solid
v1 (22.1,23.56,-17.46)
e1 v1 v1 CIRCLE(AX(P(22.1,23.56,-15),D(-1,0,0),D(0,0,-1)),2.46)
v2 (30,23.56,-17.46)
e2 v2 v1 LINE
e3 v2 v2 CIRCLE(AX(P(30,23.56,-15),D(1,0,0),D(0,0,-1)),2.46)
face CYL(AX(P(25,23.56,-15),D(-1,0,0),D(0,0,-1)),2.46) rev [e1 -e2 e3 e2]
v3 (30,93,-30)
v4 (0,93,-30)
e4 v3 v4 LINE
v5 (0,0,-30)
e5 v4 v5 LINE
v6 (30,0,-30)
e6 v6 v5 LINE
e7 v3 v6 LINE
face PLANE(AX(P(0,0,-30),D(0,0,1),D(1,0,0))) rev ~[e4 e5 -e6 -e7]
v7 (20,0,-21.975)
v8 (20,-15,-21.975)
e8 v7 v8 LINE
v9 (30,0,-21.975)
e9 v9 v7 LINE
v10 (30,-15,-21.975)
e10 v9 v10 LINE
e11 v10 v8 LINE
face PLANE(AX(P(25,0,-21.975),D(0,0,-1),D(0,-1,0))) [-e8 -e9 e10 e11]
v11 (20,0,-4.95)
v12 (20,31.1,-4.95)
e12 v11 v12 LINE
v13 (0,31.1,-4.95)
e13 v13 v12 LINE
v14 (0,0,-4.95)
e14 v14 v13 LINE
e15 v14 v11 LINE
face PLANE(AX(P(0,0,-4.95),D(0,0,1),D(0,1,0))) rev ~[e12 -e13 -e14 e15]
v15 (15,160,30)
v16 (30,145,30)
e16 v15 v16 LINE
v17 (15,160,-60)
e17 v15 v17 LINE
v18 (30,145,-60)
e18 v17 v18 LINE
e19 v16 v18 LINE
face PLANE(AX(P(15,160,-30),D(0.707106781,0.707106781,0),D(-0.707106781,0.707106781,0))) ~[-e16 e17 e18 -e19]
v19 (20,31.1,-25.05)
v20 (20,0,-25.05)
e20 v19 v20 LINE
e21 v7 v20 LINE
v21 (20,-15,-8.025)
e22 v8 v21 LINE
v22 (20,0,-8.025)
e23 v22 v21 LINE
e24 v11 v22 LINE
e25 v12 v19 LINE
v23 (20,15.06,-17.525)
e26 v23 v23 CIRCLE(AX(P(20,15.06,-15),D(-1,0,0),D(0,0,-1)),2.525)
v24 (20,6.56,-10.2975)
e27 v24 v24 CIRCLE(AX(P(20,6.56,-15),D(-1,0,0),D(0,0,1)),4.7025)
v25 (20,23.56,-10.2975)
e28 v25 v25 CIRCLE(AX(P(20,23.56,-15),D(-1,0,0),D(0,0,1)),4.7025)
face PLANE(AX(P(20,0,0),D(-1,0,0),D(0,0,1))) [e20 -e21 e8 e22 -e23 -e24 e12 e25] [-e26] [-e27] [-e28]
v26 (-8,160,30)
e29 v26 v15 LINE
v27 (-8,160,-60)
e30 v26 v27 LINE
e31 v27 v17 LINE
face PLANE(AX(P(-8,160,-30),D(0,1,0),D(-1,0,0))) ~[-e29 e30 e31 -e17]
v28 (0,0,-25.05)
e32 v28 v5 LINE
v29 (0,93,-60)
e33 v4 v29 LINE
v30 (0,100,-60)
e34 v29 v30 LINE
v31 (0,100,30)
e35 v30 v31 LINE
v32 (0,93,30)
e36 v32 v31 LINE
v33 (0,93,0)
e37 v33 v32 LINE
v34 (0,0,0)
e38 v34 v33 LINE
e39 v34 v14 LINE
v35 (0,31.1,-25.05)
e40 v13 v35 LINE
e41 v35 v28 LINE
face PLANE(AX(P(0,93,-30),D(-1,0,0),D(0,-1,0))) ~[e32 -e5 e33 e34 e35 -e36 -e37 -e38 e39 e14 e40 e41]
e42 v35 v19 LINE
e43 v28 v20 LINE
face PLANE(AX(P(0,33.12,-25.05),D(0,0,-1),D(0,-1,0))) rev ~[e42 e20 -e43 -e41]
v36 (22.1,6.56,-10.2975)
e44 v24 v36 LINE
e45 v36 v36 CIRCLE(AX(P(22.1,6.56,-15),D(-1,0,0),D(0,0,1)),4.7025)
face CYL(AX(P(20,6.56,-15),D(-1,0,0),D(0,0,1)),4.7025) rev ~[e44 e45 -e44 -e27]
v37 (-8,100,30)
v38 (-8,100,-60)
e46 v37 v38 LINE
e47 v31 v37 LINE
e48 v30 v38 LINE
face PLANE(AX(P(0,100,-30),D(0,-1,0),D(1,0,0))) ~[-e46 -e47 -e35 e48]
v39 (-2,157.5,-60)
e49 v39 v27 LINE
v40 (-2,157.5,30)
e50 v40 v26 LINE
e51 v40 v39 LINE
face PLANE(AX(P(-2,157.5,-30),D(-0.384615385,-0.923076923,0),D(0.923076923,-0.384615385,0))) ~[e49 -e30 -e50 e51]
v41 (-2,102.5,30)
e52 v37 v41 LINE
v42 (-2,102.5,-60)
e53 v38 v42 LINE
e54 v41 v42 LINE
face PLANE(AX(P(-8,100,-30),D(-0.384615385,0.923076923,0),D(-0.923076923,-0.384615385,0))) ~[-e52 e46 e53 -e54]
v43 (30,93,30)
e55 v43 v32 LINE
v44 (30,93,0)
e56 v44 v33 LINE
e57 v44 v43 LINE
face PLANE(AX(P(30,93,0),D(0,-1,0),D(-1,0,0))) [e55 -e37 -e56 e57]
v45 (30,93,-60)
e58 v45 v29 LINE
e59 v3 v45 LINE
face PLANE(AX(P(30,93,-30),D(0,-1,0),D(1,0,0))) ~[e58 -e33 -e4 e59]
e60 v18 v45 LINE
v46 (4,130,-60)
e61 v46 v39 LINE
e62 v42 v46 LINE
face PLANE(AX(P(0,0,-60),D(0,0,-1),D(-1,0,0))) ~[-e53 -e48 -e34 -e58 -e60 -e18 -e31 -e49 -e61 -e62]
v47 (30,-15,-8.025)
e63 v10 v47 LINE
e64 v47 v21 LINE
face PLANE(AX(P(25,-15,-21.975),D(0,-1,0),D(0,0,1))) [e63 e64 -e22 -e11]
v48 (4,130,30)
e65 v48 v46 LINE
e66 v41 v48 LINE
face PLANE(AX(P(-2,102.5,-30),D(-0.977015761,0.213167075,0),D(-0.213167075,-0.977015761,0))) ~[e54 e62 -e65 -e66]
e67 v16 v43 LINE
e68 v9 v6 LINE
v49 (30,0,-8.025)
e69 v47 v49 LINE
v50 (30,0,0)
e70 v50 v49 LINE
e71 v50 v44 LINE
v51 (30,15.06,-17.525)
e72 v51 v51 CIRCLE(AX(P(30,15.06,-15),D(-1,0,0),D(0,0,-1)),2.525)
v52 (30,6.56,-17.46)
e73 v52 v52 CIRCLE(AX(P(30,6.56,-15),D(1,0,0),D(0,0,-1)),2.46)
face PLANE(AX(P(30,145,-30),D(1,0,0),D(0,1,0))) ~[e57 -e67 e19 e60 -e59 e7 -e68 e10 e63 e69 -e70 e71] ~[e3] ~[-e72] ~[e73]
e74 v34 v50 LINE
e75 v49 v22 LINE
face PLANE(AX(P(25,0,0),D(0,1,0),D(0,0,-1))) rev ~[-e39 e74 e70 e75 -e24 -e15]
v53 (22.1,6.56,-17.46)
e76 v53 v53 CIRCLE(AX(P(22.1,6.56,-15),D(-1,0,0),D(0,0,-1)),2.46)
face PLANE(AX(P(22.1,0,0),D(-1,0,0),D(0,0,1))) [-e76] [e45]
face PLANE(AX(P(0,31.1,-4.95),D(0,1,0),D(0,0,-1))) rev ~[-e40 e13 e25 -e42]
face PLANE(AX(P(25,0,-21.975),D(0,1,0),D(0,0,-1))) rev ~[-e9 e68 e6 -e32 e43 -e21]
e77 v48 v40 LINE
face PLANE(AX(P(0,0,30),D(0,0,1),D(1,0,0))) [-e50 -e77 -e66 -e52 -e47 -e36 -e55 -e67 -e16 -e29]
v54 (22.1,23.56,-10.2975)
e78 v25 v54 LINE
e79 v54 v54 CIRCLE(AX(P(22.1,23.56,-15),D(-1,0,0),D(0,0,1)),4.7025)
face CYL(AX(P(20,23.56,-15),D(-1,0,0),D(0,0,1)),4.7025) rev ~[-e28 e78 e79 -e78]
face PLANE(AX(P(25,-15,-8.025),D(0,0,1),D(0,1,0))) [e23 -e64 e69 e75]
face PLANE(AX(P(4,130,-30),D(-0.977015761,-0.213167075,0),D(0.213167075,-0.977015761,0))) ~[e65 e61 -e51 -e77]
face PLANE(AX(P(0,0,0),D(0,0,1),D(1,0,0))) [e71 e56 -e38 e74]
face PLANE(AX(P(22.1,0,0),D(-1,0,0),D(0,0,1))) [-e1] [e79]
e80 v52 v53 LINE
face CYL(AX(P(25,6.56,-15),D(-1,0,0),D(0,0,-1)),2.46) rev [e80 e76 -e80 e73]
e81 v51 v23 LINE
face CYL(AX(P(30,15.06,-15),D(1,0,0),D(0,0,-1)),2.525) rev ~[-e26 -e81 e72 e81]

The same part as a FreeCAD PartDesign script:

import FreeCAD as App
import Part
import Sketcher

V = App.Vector
Q = App.Units.Quantity


def add_polygon(sketch, points):
    """Adds a closed chain of lines whose ends are joined by coincident constraints."""
    first, n = sketch.GeometryCount, len(points)
    for a, b in zip(points, points[1:] + points[:1]):
        sketch.addGeometry(Part.LineSegment(App.Vector(*a, 0), App.Vector(*b, 0)), False)
    for i in range(n):
        sketch.addConstraint(Sketcher.Constraint("Coincident", first + i, 2, first + (i + 1) % n, 1))

doc = App.newDocument("Part")
body = doc.addObject("PartDesign::Body", "Body")

sketch1 = body.newObject("Sketcher::SketchObject", "Sketch")
sketch1.AttachmentSupport = (doc.getObject("XY_Plane"), [""])
sketch1.MapMode = "FlatFace"
add_polygon(sketch1, [(0, 40), (0, 0), (25, 0), (25, 40)])
sketch1.addConstraint(Sketcher.Constraint("Vertical", 0))
sketch1.addConstraint(Sketcher.Constraint("Horizontal", 1))
sketch1.addConstraint(Sketcher.Constraint("Vertical", 2))
sketch1.addConstraint(Sketcher.Constraint("Horizontal", 3))
sketch1.addConstraint(Sketcher.Constraint("Coincident", 0, 2, -1, 1))
sketch1.addConstraint(Sketcher.Constraint("DistanceX", 1, 1, 1, 2, 25.0))
sketch1.addConstraint(Sketcher.Constraint("DistanceY", 0, 2, 0, 1, 40.0))
pad1 = body.newObject("PartDesign::Pad", "Pad")
pad1.Profile = sketch1
pad1.Length = 30
pad1.Reversed = True

sketch2 = body.newObject("Sketcher::SketchObject", "Sketch001")
sketch2.AttachmentSupport = (doc.getObject("YZ_Plane"), [""])
sketch2.MapMode = "FlatFace"
sketch2.AttachmentOffset = App.Placement(V(0, 0, 25), App.Rotation())
sketch2.addGeometry(Part.Circle(V(6.56, -15, 0), V(0, 0, 1), 2.46), False)
sketch2.addConstraint(Sketcher.Constraint("Diameter", 0, 4.92))
sketch2.addConstraint(Sketcher.Constraint("DistanceY", 0, 3, -1, 1, 15.0))
sketch2.addConstraint(Sketcher.Constraint("DistanceX", -1, 1, 0, 3, 6.56))
pocket1 = body.newObject("PartDesign::Pocket", "Pocket")
pocket1.Profile = sketch2
pocket1.Length = 30

sketch3 = body.newObject("Sketcher::SketchObject", "Sketch002")
sketch3.AttachmentSupport = (doc.getObject("YZ_Plane"), [""])
sketch3.MapMode = "FlatFace"
add_polygon(sketch3, [(0, -25.05), (0, -4.95), (33.12, -4.95), (33.12, -25.05)])
sketch3.addConstraint(Sketcher.Constraint("Vertical", 0))
sketch3.addConstraint(Sketcher.Constraint("Horizontal", 1))
sketch3.addConstraint(Sketcher.Constraint("Vertical", 2))
sketch3.addConstraint(Sketcher.Constraint("Horizontal", 3))
sketch3.addConstraint(Sketcher.Constraint("PointOnObject", 0, 2, -2))
sketch3.addConstraint(Sketcher.Constraint("DistanceY", 0, 1, 0, 2, 20.1))
sketch3.addConstraint(Sketcher.Constraint("DistanceX", 1, 1, 1, 2, 33.12))
sketch3.addConstraint(Sketcher.Constraint("DistanceY", 0, 2, -1, 1, 4.95))
pocket2 = body.newObject("PartDesign::Pocket", "Pocket001")
pocket2.Profile = sketch3
pocket2.Length = 20
pocket2.Reversed = True

sketch4 = body.newObject("Sketcher::SketchObject", "Sketch003")
sketch4.AttachmentSupport = (doc.getObject("XZ_Plane"), [""])
sketch4.MapMode = "FlatFace"
add_polygon(sketch4, [(25, -8.025), (20, -8.025), (20, -21.975), (25, -21.975)])
sketch4.addConstraint(Sketcher.Constraint("Horizontal", 0))
sketch4.addConstraint(Sketcher.Constraint("Vertical", 1))
sketch4.addConstraint(Sketcher.Constraint("Horizontal", 2))
sketch4.addConstraint(Sketcher.Constraint("Vertical", 3))
sketch4.addConstraint(Sketcher.Constraint("DistanceY", 1, 2, 1, 1, 13.95))
sketch4.addConstraint(Sketcher.Constraint("DistanceX", 0, 2, 0, 1, 5.0))
sketch4.addConstraint(Sketcher.Constraint("DistanceX", -1, 1, 0, 2, 20.0))
sketch4.addConstraint(Sketcher.Constraint("DistanceY", 0, 2, -1, 1, 8.025))
pad2 = body.newObject("PartDesign::Pad", "Pad001")
pad2.Profile = sketch4
pad2.Length = 15

sketch5 = body.newObject("Sketcher::SketchObject", "Sketch004")
sketch5.AttachmentSupport = (doc.getObject("YZ_Plane"), [""])
sketch5.MapMode = "FlatFace"
sketch5.AttachmentOffset = App.Placement(V(0, 0, 20), App.Rotation())
sketch5.addGeometry(Part.Circle(V(6.56, -15, 0), V(0, 0, 1), 4.7025), False)
sketch5.addGeometry(Part.Circle(V(6.56, -15, 0), V(0, 0, 1), 2.46), False)
sketch5.addConstraint(Sketcher.Constraint("Coincident", 1, 3, 0, 3))
sketch5.addConstraint(Sketcher.Constraint("Diameter", 0, 9.405))
sketch5.addConstraint(Sketcher.Constraint("Diameter", 1, 4.92))
sketch5.addConstraint(Sketcher.Constraint("DistanceY", 0, 3, -1, 1, 15.0))
sketch5.addConstraint(Sketcher.Constraint("DistanceX", -1, 1, 0, 3, 6.56))
pocket3 = body.newObject("PartDesign::Pocket", "Pocket002")
pocket3.Profile = sketch5
pocket3.Length = 2.1
pocket3.Reversed = True

sketch6 = body.newObject("Sketcher::SketchObject", "Sketch005")
sketch6.AttachmentSupport = (doc.getObject("YZ_Plane"), [""])
sketch6.MapMode = "FlatFace"
sketch6.AttachmentOffset = App.Placement(V(0, 0, 25), App.Rotation())
sketch6.addGeometry(Part.Circle(V(23.56, -15, 0), V(0, 0, 1), 2.46), False)
sketch6.addConstraint(Sketcher.Constraint("Diameter", 0, 4.92))
sketch6.addConstraint(Sketcher.Constraint("DistanceY", 0, 3, -1, 1, 15.0))
sketch6.addConstraint(Sketcher.Constraint("DistanceX", -1, 1, 0, 3, 23.56))
pocket4 = body.newObject("PartDesign::Pocket", "Pocket003")
pocket4.Profile = sketch6
pocket4.Length = 10

sketch7 = body.newObject("Sketcher::SketchObject", "Sketch006")
sketch7.AttachmentSupport = (doc.getObject("YZ_Plane"), [""])
sketch7.MapMode = "FlatFace"
sketch7.AttachmentOffset = App.Placement(V(0, 0, 20), App.Rotation())
sketch7.addGeometry(Part.Circle(V(23.56, -15, 0), V(0, 0, 1), 4.7025), False)
sketch7.addGeometry(Part.Circle(V(23.56, -15, 0), V(0, 0, 1), 2.46), False)
sketch7.addConstraint(Sketcher.Constraint("Coincident", 1, 3, 0, 3))
sketch7.addConstraint(Sketcher.Constraint("Diameter", 0, 9.405))
sketch7.addConstraint(Sketcher.Constraint("Diameter", 1, 4.92))
sketch7.addConstraint(Sketcher.Constraint("DistanceY", 0, 3, -1, 1, 15.0))
sketch7.addConstraint(Sketcher.Constraint("DistanceX", -1, 1, 0, 3, 23.56))
pocket5 = body.newObject("PartDesign::Pocket", "Pocket004")
pocket5.Profile = sketch7
pocket5.Length = 2.1
pocket5.Reversed = True

sketch8 = body.newObject("Sketcher::SketchObject", "Sketch007")
sketch8.AttachmentSupport = (doc.getObject("YZ_Plane"), [""])
sketch8.MapMode = "FlatFace"
sketch8.AttachmentOffset = App.Placement(V(0, 0, 25), App.Rotation())
add_polygon(sketch8, [(0, -30), (40, -30), (40, 0), (0, 0), (0, -8.025), (-15, -8.025), (-15, -21.975), (0, -21.975)])
sketch8.addGeometry(Part.Circle(V(6.56, -15, 0), V(0, 0, 1), 2.46), False)
sketch8.addGeometry(Part.Circle(V(23.56, -15, 0), V(0, 0, 1), 2.46), False)
sketch8.addConstraint(Sketcher.Constraint("Horizontal", 0))
sketch8.addConstraint(Sketcher.Constraint("Vertical", 1))
sketch8.addConstraint(Sketcher.Constraint("Horizontal", 2))
sketch8.addConstraint(Sketcher.Constraint("Vertical", 3))
sketch8.addConstraint(Sketcher.Constraint("Horizontal", 4))
sketch8.addConstraint(Sketcher.Constraint("Vertical", 5))
sketch8.addConstraint(Sketcher.Constraint("Horizontal", 6))
sketch8.addConstraint(Sketcher.Constraint("Vertical", 7))
sketch8.addConstraint(Sketcher.Constraint("Coincident", 2, 2, -1, 1))
sketch8.addConstraint(Sketcher.Constraint("Equal", 8, 9))
sketch8.addConstraint(Sketcher.Constraint("PointOnObject", 6, 2, -2))
sketch8.addConstraint(Sketcher.Constraint("Horizontal", 8, 3, 9, 3))
sketch8.addConstraint(Sketcher.Constraint("Equal", 3, 7))
sketch8.addConstraint(Sketcher.Constraint("Diameter", 8, 4.92))
sketch8.addConstraint(Sketcher.Constraint("DistanceX", 0, 1, 0, 2, 40.0))
sketch8.addConstraint(Sketcher.Constraint("DistanceX", 4, 2, 4, 1, 15.0))
sketch8.addConstraint(Sketcher.Constraint("DistanceY", 1, 1, 1, 2, 30.0))
sketch8.addConstraint(Sketcher.Constraint("DistanceY", 8, 3, -1, 1, 15.0))
sketch8.addConstraint(Sketcher.Constraint("DistanceX", 8, 3, 9, 3, 17.0))
sketch8.addConstraint(Sketcher.Constraint("DistanceY", 5, 2, 5, 1, 13.95))
sketch8.addConstraint(Sketcher.Constraint("DistanceX", -1, 1, 8, 3, 6.56))
pad3 = body.newObject("PartDesign::Pad", "Pad002")
pad3.Profile = sketch8
pad3.Length = 5

sketch9 = body.newObject("Sketcher::SketchObject", "Sketch008")
sketch9.AttachmentSupport = (doc.getObject("XZ_Plane"), [""])
sketch9.MapMode = "FlatFace"
sketch9.AttachmentOffset = App.Placement(V(0, 0, -40), App.Rotation())
add_polygon(sketch9, [(30, -30), (0, -30), (0, 0), (30, 0)])
sketch9.addConstraint(Sketcher.Constraint("Horizontal", 0))
sketch9.addConstraint(Sketcher.Constraint("Vertical", 1))
sketch9.addConstraint(Sketcher.Constraint("Horizontal", 2))
sketch9.addConstraint(Sketcher.Constraint("Vertical", 3))
sketch9.addConstraint(Sketcher.Constraint("Coincident", 1, 2, -1, 1))
sketch9.addConstraint(Sketcher.Constraint("Equal", 2, 1))
sketch9.addConstraint(Sketcher.Constraint("DistanceX", 0, 2, 0, 1, 30.0))
pad4 = body.newObject("PartDesign::Pad", "Pad003")
pad4.Profile = sketch9
pad4.Length = 30
pad4.Reversed = True

sketch10 = body.newObject("Sketcher::SketchObject", "Sketch009")
sketch10.AttachmentSupport = (doc.getObject("YZ_Plane"), [""])
sketch10.MapMode = "FlatFace"
sketch10.AttachmentOffset = App.Placement(V(0, 0, 30), App.Rotation())
sketch10.addGeometry(Part.Circle(V(15.06, -15, 0), V(0, 0, 1), 2.525), False)
sketch10.addConstraint(Sketcher.Constraint("Diameter", 0, 5.05))
sketch10.addConstraint(Sketcher.Constraint("DistanceY", 0, 3, -1, 1, 15.0))
sketch10.addConstraint(Sketcher.Constraint("DistanceX", -1, 1, 0, 3, 15.06))
pocket6 = body.newObject("PartDesign::Pocket", "Pocket005")
pocket6.Profile = sketch10
pocket6.Length = 30

sketch11 = body.newObject("Sketcher::SketchObject", "Sketch010")
sketch11.AttachmentSupport = (doc.getObject("XY_Plane"), [""])
sketch11.MapMode = "FlatFace"
add_polygon(sketch11, [(0, 70), (30, 70), (30, 145), (15, 160), (-8, 160), (-2, 157.5), (4, 130), (-2, 102.5), (-8, 100), (0, 100)])
sketch11.addConstraint(Sketcher.Constraint("Horizontal", 0))
sketch11.addConstraint(Sketcher.Constraint("Vertical", 1))
sketch11.addConstraint(Sketcher.Constraint("Horizontal", 3))
sketch11.addConstraint(Sketcher.Constraint("Horizontal", 8))
sketch11.addConstraint(Sketcher.Constraint("Vertical", 9))
sketch11.addConstraint(Sketcher.Constraint("PointOnObject", 8, 2, -2))
sketch11.addConstraint(Sketcher.Constraint("Vertical", 4, 2, 6, 2))
sketch11.addConstraint(Sketcher.Constraint("Vertical", 3, 2, 7, 2))
sketch11.addConstraint(Sketcher.Constraint("Equal", 0, 9))
sketch11.addConstraint(Sketcher.Constraint("Equal", 5, 6))
sketch11.addConstraint(Sketcher.Constraint("Equal", 4, 7))
sketch11.addConstraint(Sketcher.Constraint("DistanceX", 0, 1, 0, 2, 30.0))
sketch11.addConstraint(Sketcher.Constraint("DistanceY", 5, 2, 2, 2, 30.0))
sketch11.addConstraint(Sketcher.Constraint("DistanceX", 3, 2, 3, 1, 23.0))
sketch11.addConstraint(Sketcher.Constraint("DistanceX", 8, 1, 8, 2, 8.0))
sketch11.addConstraint(Sketcher.Constraint("DistanceY", 1, 1, 1, 2, 75.0))
sketch11.addConstraint(Sketcher.Constraint("DistanceY", -1, 1, 0, 2, 70.0))
sketch11.addConstraint(Sketcher.Constraint("DistanceX", 4, 2, -1, 1, 2.0))
sketch11.addConstraint(Sketcher.Constraint("DistanceX", -1, 1, 5, 2, 4.0))
sketch11.addConstraint(Sketcher.Constraint("DistanceY", 6, 2, 4, 2, 55.0))
pad5 = body.newObject("PartDesign::Pad", "Pad004")
pad5.Profile = sketch11
pad5.Length = 30
pad5.Reversed = True

sketch12 = body.newObject("Sketcher::SketchObject", "Sketch011")
sketch12.AttachmentSupport = (doc.getObject("YZ_Plane"), [""])
sketch12.MapMode = "FlatFace"
add_polygon(sketch12, [(33.12, -4.95), (33.12, -25.05), (31.1, -25.05), (31.1, -4.95)])
sketch12.addConstraint(Sketcher.Constraint("Vertical", 0))
sketch12.addConstraint(Sketcher.Constraint("Horizontal", 1))
sketch12.addConstraint(Sketcher.Constraint("Vertical", 2))
sketch12.addConstraint(Sketcher.Constraint("Horizontal", 3))
sketch12.addConstraint(Sketcher.Constraint("DistanceX", 1, 2, 1, 1, 2.02))
sketch12.addConstraint(Sketcher.Constraint("DistanceY", 0, 2, 0, 1, 20.1))
sketch12.addConstraint(Sketcher.Constraint("DistanceX", -1, 1, 1, 2, 31.1))
sketch12.addConstraint(Sketcher.Constraint("DistanceY", 0, 2, -1, 1, 25.05))
pad6 = body.newObject("PartDesign::Pad", "Pad005")
pad6.Profile = sketch12
pad6.Length = 20

sketch13 = body.newObject("Sketcher::SketchObject", "Sketch012")
sketch13.AttachmentSupport = (doc.getObject("XY_Plane"), [""])
sketch13.MapMode = "FlatFace"
add_polygon(sketch13, [(-8, 100), (0, 100), (0, 93), (30, 93), (30, 145), (15, 160), (-8, 160), (-2, 157.5), (4, 130), (-2, 102.5)])
sketch13.addConstraint(Sketcher.Constraint("Horizontal", 0))
sketch13.addConstraint(Sketcher.Constraint("Vertical", 1))
sketch13.addConstraint(Sketcher.Constraint("Horizontal", 2))
sketch13.addConstraint(Sketcher.Constraint("Vertical", 3))
sketch13.addConstraint(Sketcher.Constraint("Horizontal", 5))
sketch13.addConstraint(Sketcher.Constraint("PointOnObject", 0, 2, -2))
sketch13.addConstraint(Sketcher.Constraint("Vertical", 6, 2, 8, 2))
sketch13.addConstraint(Sketcher.Constraint("Vertical", 5, 2, 9, 2))
sketch13.addConstraint(Sketcher.Constraint("Equal", 7, 8))
sketch13.addConstraint(Sketcher.Constraint("Equal", 6, 9))
sketch13.addConstraint(Sketcher.Constraint("DistanceY", 3, 1, 3, 2, 52.0))
sketch13.addConstraint(Sketcher.Constraint("DistanceX", 0, 1, 0, 2, 8.0))
sketch13.addConstraint(Sketcher.Constraint("DistanceX", 2, 1, 2, 2, 30.0))
sketch13.addConstraint(Sketcher.Constraint("DistanceX", 5, 2, 5, 1, 23.0))
sketch13.addConstraint(Sketcher.Constraint("DistanceY", 1, 2, 1, 1, 7.0))
sketch13.addConstraint(Sketcher.Constraint("Angle", 4, Q("135 deg")))
sketch13.addConstraint(Sketcher.Constraint("DistanceY", -1, 1, 0, 2, 100.0))
sketch13.addConstraint(Sketcher.Constraint("DistanceX", 6, 2, -1, 1, 2.0))
sketch13.addConstraint(Sketcher.Constraint("DistanceX", -1, 1, 7, 2, 4.0))
sketch13.addConstraint(Sketcher.Constraint("Distance", 6, 6.5))
pad7 = body.newObject("PartDesign::Pad", "Pad006")
pad7.Profile = sketch13
pad7.Length = 30
doc.recompute()

datumplane = body.newObject("PartDesign::Plane", "DatumPlane")
datumplane.AttachmentSupport = (doc.getObject("XY_Plane"), [""])
datumplane.MapMode = "FlatFace"
datumplane.AttachmentOffset = App.Placement(V(0, 0, -15), App.Rotation())
mirrored = body.newObject("PartDesign::Mirrored", "Mirrored")
mirrored.Originals = [pad7]
mirrored.MirrorPlane = (datumplane, [""])
body.Tip = mirrored

doc.recompute()
